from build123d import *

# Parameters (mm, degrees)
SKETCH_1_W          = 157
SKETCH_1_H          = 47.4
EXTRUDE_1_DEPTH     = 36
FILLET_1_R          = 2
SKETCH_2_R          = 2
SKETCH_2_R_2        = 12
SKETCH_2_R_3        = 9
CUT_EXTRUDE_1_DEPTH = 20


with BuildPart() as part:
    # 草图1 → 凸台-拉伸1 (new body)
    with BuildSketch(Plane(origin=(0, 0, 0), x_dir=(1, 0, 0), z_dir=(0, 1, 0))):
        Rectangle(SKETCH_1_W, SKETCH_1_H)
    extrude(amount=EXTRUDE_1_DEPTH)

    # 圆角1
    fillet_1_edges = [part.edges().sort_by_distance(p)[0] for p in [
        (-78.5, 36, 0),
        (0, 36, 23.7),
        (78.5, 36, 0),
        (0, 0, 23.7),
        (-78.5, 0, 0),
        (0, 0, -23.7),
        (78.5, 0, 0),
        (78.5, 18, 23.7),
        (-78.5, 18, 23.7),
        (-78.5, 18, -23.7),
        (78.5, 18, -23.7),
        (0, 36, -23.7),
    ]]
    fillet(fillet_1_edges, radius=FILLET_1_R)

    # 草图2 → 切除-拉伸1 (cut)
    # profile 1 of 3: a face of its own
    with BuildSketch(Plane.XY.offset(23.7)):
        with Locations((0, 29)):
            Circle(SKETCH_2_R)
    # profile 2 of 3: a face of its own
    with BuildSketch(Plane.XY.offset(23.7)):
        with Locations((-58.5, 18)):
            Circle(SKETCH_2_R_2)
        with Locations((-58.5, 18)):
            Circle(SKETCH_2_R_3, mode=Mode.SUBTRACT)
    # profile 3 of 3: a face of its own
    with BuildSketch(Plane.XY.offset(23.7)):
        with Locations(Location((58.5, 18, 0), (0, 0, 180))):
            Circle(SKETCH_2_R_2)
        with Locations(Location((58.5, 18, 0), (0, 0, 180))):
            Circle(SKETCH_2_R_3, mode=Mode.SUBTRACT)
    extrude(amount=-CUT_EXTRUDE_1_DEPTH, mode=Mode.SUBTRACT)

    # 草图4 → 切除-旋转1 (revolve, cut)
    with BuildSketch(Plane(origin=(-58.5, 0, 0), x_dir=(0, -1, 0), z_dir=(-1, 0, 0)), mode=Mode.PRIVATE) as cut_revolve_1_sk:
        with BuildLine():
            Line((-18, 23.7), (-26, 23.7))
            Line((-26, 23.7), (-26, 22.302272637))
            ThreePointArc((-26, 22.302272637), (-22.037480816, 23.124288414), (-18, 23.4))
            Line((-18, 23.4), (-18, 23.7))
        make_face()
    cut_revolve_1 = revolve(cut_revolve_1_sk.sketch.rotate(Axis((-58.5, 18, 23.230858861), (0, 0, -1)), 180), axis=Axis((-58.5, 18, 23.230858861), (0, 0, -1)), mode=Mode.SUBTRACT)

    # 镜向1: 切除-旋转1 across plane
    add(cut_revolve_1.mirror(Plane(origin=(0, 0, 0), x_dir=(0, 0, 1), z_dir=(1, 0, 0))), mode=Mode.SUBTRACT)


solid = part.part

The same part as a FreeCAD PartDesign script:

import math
import FreeCAD as App
import Part
import Sketcher
Q = App.Units.Quantity


def add_polygon(sketch, points):
    """Adds a closed chain of lines whose ends are joined by coincident constraints."""
    first, n = sketch.GeometryCount, len(points)
    for a, b in zip(points, points[1:] + points[:1]):
        sketch.addGeometry(Part.LineSegment(App.Vector(*a, 0), App.Vector(*b, 0)), False)
    for i in range(n):
        sketch.addConstraint(Sketcher.Constraint("Coincident", first + i, 2, first + (i + 1) % n, 1))

doc = App.newDocument("Part")
body = doc.addObject("PartDesign::Body", "Body")

sketch1 = body.newObject("Sketcher::SketchObject", "Sketch")
sketch1.AttachmentSupport = (doc.getObject("XZ_Plane"), [""])
sketch1.MapMode = "FlatFace"
add_polygon(sketch1, [(-78, -24), (-78, 24), (78, 24), (78, -24)])
sketch1.addConstraint([
    Sketcher.Constraint("Vertical", 0),
    Sketcher.Constraint("Horizontal", 1),
    Sketcher.Constraint("Vertical", 2),
    Sketcher.Constraint("Horizontal", 3),
    Sketcher.Constraint("Symmetric", 0, 2, 2, 2, -1, 1),
    Sketcher.Constraint("DistanceX", 1, 1, 1, 2, Q("157 mm")),
    Sketcher.Constraint("DistanceY", 0, 1, 0, 2, Q("47.4 mm")),
])
pad1 = body.newObject("PartDesign::Pad", "Pad")
pad1.Profile = sketch1
pad1.Length = 36
pad1.Reversed = True
doc.recompute()

fillet = body.newObject("PartDesign::Fillet", "Fillet")
fillet.Base = (pad1, ["Edge1"])
fillet.UseAllEdges = True
fillet.Radius = 2

sketch2 = body.newObject("Sketcher::SketchObject", "Sketch001")
sketch2.AttachmentSupport = (doc.getObject("XY_Plane"), [""])
sketch2.MapMode = "FlatFace"
sketch2.AttachmentOffset = App.Placement(App.Vector(0, 0, 23.7), App.Rotation())
sketch2.addGeometry([
    Part.Circle(App.Vector(0, 29, 0), App.Vector(0, 0, 1), 2),
    Part.Circle(App.Vector(-58.5, 18, 0), App.Vector(0, 0, 1), 12),
    Part.Circle(App.Vector(-58.5, 18, 0), App.Vector(0, 0, 1), 9),
    Part.Circle(App.Vector(58.5, 18, 0), App.Vector(0, 0, 1), 12),
    Part.Circle(App.Vector(58.5, 18, 0), App.Vector(0, 0, 1), 9),
], False)
sketch2.addConstraint([
    Sketcher.Constraint("Coincident", 2, 3, 1, 3),
    Sketcher.Constraint("Coincident", 4, 3, 3, 3),
    Sketcher.Constraint("Equal", 1, 3),
    Sketcher.Constraint("Equal", 2, 4),
    Sketcher.Constraint("Symmetric", 1, 3, 3, 3, -2),
    Sketcher.Constraint("PointOnObject", 0, 3, -2),
    Sketcher.Constraint("Diameter", 0, Q("4 mm")),
    Sketcher.Constraint("Diameter", 1, Q("24 mm")),
    Sketcher.Constraint("Diameter", 2, Q("18 mm")),
    Sketcher.Constraint("DistanceY", -1, 1, 0, 3, Q("29 mm")),
    Sketcher.Constraint("DistanceY", -1, 1, 1, 3, Q("18 mm")),
    Sketcher.Constraint("DistanceX", 1, 3, 3, 3, Q("117 mm")),
])
pocket1 = body.newObject("PartDesign::Pocket", "Pocket")
pocket1.Profile = sketch2
pocket1.Length = 20

sketch3 = body.newObject("Sketcher::SketchObject", "Sketch002")
sketch3.AttachmentSupport = (doc.getObject("YZ_Plane"), [""])
sketch3.MapMode = "FlatFace"
sketch3.AttachmentOffset = App.Placement(App.Vector(0, 0, -58.5), App.Rotation())
sketch3.addGeometry([
    Part.LineSegment(App.Vector(18, 23.7, 0), App.Vector(26, 23.7, 0)),
    Part.LineSegment(App.Vector(26, 23.7, 0), App.Vector(26, 22.3, 0)),
    Part.ArcOfCircle(Part.Circle(App.Vector(18, -6.3, 0), App.Vector(0, 0, 1), 29.7), math.radians(74.37), math.radians(90)),
    Part.LineSegment(App.Vector(18, 23.4, 0), App.Vector(18, 23.7, 0)),
], False)
sketch3.addGeometry(Part.LineSegment(App.Vector(18, 23.7, 0), App.Vector(18, -6.3, 0)), True)
sketch3.addConstraint([
    Sketcher.Constraint("Coincident", 0, 2, 1, 1),
    Sketcher.Constraint("Coincident", 1, 2, 2, 1),
    Sketcher.Constraint("Coincident", 2, 2, 3, 1),
    Sketcher.Constraint("Coincident", 3, 2, 0, 1),
    Sketcher.Constraint("Horizontal", 0),
    Sketcher.Constraint("Vertical", 1),
    Sketcher.Constraint("Vertical", 3),
    Sketcher.Constraint("Vertical", 4),
    Sketcher.Constraint("Coincident", 4, 1, 3, 2),
    Sketcher.Constraint("Coincident", 4, 2, 2, 3),
    Sketcher.Constraint("Radius", 2, Q("29.7 mm")),
    Sketcher.Constraint("DistanceX", 0, 1, 0, 2, Q("8 mm")),
    Sketcher.Constraint("DistanceY", 4, 2, 4, 1, Q("30 mm")),
    Sketcher.Constraint("DistanceX", -1, 1, 2, 3, Q("18 mm")),
    Sketcher.Constraint("DistanceY", 2, 3, -1, 1, Q("6.3 mm")),
])
groove = body.newObject("PartDesign::Groove", "Groove")
groove.Profile = sketch3
groove.ReferenceAxis = (sketch3, ["Axis0"])
groove.Angle = 360
doc.recompute()

mirrored = body.newObject("PartDesign::Mirrored", "Mirrored")
mirrored.Originals = [groove]
mirrored.MirrorPlane = (doc.getObject("YZ_Plane"), [""])
body.Tip = mirrored

doc.recompute()
